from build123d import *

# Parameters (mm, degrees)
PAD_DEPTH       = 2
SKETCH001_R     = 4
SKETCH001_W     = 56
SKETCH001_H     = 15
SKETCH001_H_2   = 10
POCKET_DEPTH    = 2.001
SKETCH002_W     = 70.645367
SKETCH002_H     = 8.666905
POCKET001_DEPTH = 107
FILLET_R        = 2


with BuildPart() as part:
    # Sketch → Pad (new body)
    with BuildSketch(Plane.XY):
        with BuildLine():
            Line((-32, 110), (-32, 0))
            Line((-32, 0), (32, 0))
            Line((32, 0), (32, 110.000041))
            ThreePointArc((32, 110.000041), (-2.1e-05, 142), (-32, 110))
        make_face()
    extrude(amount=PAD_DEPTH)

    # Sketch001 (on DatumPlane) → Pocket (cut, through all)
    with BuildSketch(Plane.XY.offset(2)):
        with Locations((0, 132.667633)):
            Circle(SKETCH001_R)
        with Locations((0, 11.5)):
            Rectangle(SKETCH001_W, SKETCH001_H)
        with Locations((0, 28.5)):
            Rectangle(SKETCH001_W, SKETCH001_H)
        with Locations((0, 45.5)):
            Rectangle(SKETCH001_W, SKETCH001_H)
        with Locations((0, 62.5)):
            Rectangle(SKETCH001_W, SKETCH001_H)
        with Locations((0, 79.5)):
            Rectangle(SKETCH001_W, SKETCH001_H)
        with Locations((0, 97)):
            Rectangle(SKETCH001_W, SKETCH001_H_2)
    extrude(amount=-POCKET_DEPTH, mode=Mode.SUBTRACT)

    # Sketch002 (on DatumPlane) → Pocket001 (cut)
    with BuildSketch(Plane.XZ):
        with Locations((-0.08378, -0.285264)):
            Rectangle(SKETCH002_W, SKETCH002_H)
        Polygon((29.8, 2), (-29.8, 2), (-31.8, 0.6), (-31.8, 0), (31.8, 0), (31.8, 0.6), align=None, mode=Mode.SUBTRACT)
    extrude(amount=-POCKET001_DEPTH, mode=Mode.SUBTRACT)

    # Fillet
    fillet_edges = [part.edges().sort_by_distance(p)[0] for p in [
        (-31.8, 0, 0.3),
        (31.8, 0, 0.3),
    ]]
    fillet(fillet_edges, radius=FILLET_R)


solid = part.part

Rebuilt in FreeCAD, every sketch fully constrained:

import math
import FreeCAD as App
import Part
import Sketcher
Q = App.Units.Quantity


def edges_at(feature, points):
    """Names of the edges that pass closest to the given points."""
    edges = feature.Shape.Edges
    near = lambda p: min(range(len(edges)), key=lambda i: edges[i].distToShape(Part.Vertex(*p))[0])
    return sorted({f"Edge{near(p) + 1}" for p in points})

doc = App.newDocument("Part")
body = doc.addObject("PartDesign::Body", "Body")

# Sketch on XY plane
sketch1 = body.newObject("Sketcher::SketchObject", "Sketch")
sketch1.AttachmentSupport = (doc.getObject("XY_Plane"), [""])
sketch1.MapMode = "FlatFace"
sketch1.addGeometry(Part.LineSegment(App.Vector(-32, 110, 0), App.Vector(-32, 0, 0)), False)
sketch1.addGeometry(Part.LineSegment(App.Vector(-32, 0, 0), App.Vector(32, 0, 0)), False)
sketch1.addGeometry(Part.LineSegment(App.Vector(32, 0, 0), App.Vector(32, 110.000041, 0)), False)
sketch1.addGeometry(Part.ArcOfCircle(Part.Circle(App.Vector(0, 110, 0), App.Vector(0, 0, 1), 32), math.radians(0.000073), math.radians(180)), False)
sketch1.addConstraint(Sketcher.Constraint("Coincident", 0, 2, 1, 1))
sketch1.addConstraint(Sketcher.Constraint("Coincident", 1, 2, 2, 1))
sketch1.addConstraint(Sketcher.Constraint("Coincident", 2, 2, 3, 1))
sketch1.addConstraint(Sketcher.Constraint("Coincident", 3, 2, 0, 1))
sketch1.addConstraint(Sketcher.Constraint("Vertical", 0))
sketch1.addConstraint(Sketcher.Constraint("Horizontal", 1))
sketch1.addConstraint(Sketcher.Constraint("Vertical", 2))
sketch1.addConstraint(Sketcher.Constraint("PointOnObject", 3, 3, -2))
sketch1.addConstraint(Sketcher.Constraint("PointOnObject", 0, 2, -1))
sketch1.addConstraint(Sketcher.Constraint("Radius", 3, Q("32 mm")))
sketch1.addConstraint(Sketcher.Constraint("DistanceY", 0, 2, 0, 1, Q("110 mm")))
sketch1.addConstraint(Sketcher.Constraint("DistanceY", -1, 1, 3, 3, Q("110 mm")))
sketch1.addConstraint(Sketcher.Constraint("DistanceY", 2, 1, 2, 2, Q("110.000041 mm")))
pad1 = body.newObject("PartDesign::Pad", "Pad")
pad1.Profile = sketch1
pad1.Length = 2

# Sketch on XY plane
sketch2 = body.newObject("Sketcher::SketchObject", "Sketch001")
sketch2.AttachmentSupport = (doc.getObject("XY_Plane"), [""])
sketch2.MapMode = "FlatFace"
sketch2.AttachmentOffset = App.Placement(App.Vector(0, 0, 2), App.Rotation())
sketch2.addGeometry(Part.Circle(App.Vector(0, 132.7, 0), App.Vector(0, 0, 1), 4), False)
sketch2.addGeometry(Part.LineSegment(App.Vector(-28, 19, 0), App.Vector(-28, 4, 0)), False)
sketch2.addGeometry(Part.LineSegment(App.Vector(-28, 4, 0), App.Vector(28, 4, 0)), False)
sketch2.addGeometry(Part.LineSegment(App.Vector(28, 4, 0), App.Vector(28, 19, 0)), False)
sketch2.addGeometry(Part.LineSegment(App.Vector(28, 19, 0), App.Vector(-28, 19, 0)), False)
sketch2.addGeometry(Part.LineSegment(App.Vector(-28, 36, 0), App.Vector(-28, 21, 0)), False)
sketch2.addGeometry(Part.LineSegment(App.Vector(-28, 21, 0), App.Vector(28, 21, 0)), False)
sketch2.addGeometry(Part.LineSegment(App.Vector(28, 21, 0), App.Vector(28, 36, 0)), False)
sketch2.addGeometry(Part.LineSegment(App.Vector(28, 36, 0), App.Vector(-28, 36, 0)), False)
sketch2.addGeometry(Part.LineSegment(App.Vector(-28, 53, 0), App.Vector(-28, 38, 0)), False)
sketch2.addGeometry(Part.LineSegment(App.Vector(-28, 38, 0), App.Vector(28, 38, 0)), False)
sketch2.addGeometry(Part.LineSegment(App.Vector(28, 38, 0), App.Vector(28, 53, 0)), False)
sketch2.addGeometry(Part.LineSegment(App.Vector(28, 53, 0), App.Vector(-28, 53, 0)), False)
sketch2.addGeometry(Part.LineSegment(App.Vector(-28, 70, 0), App.Vector(-28, 55, 0)), False)
sketch2.addGeometry(Part.LineSegment(App.Vector(-28, 55, 0), App.Vector(28, 55, 0)), False)
sketch2.addGeometry(Part.LineSegment(App.Vector(28, 55, 0), App.Vector(28, 70, 0)), False)
sketch2.addGeometry(Part.LineSegment(App.Vector(28, 70, 0), App.Vector(-28, 70, 0)), False)
sketch2.addGeometry(Part.LineSegment(App.Vector(-28, 87, 0), App.Vector(-28, 72, 0)), False)
sketch2.addGeometry(Part.LineSegment(App.Vector(-28, 72, 0), App.Vector(28, 72, 0)), False)
sketch2.addGeometry(Part.LineSegment(App.Vector(28, 72, 0), App.Vector(28, 87, 0)), False)
sketch2.addGeometry(Part.LineSegment(App.Vector(28, 87, 0), App.Vector(-28, 87, 0)), False)
sketch2.addGeometry(Part.LineSegment(App.Vector(-28, 102, 0), App.Vector(-28, 92, 0)), False)
sketch2.addGeometry(Part.LineSegment(App.Vector(-28, 92, 0), App.Vector(28, 92, 0)), False)
sketch2.addGeometry(Part.LineSegment(App.Vector(28, 92, 0), App.Vector(28, 102, 0)), False)
sketch2.addGeometry(Part.LineSegment(App.Vector(28, 102, 0), App.Vector(-28, 102, 0)), False)
sketch2.addConstraint(Sketcher.Constraint("Coincident", 1, 2, 2, 1))
sketch2.addConstraint(Sketcher.Constraint("Coincident", 2, 2, 3, 1))
sketch2.addConstraint(Sketcher.Constraint("Coincident", 3, 2, 4, 1))
sketch2.addConstraint(Sketcher.Constraint("Coincident", 4, 2, 1, 1))
sketch2.addConstraint(Sketcher.Constraint("Coincident", 5, 2, 6, 1))
sketch2.addConstraint(Sketcher.Constraint("Coincident", 6, 2, 7, 1))
sketch2.addConstraint(Sketcher.Constraint("Coincident", 7, 2, 8, 1))
sketch2.addConstraint(Sketcher.Constraint("Coincident", 8, 2, 5, 1))
sketch2.addConstraint(Sketcher.Constraint("Coincident", 9, 2, 10, 1))
sketch2.addConstraint(Sketcher.Constraint("Coincident", 10, 2, 11, 1))
sketch2.addConstraint(Sketcher.Constraint("Coincident", 11, 2, 12, 1))
sketch2.addConstraint(Sketcher.Constraint("Coincident", 12, 2, 9, 1))
sketch2.addConstraint(Sketcher.Constraint("Coincident", 13, 2, 14, 1))
sketch2.addConstraint(Sketcher.Constraint("Coincident", 14, 2, 15, 1))
sketch2.addConstraint(Sketcher.Constraint("Coincident", 15, 2, 16, 1))
sketch2.addConstraint(Sketcher.Constraint("Coincident", 16, 2, 13, 1))
sketch2.addConstraint(Sketcher.Constraint("Coincident", 17, 2, 18, 1))
sketch2.addConstraint(Sketcher.Constraint("Coincident", 18, 2, 19, 1))
sketch2.addConstraint(Sketcher.Constraint("Coincident", 19, 2, 20, 1))
sketch2.addConstraint(Sketcher.Constraint("Coincident", 20, 2, 17, 1))
sketch2.addConstraint(Sketcher.Constraint("Coincident", 21, 2, 22, 1))
sketch2.addConstraint(Sketcher.Constraint("Coincident", 22, 2, 23, 1))
sketch2.addConstraint(Sketcher.Constraint("Coincident", 23, 2, 24, 1))
sketch2.addConstraint(Sketcher.Constraint("Coincident", 24, 2, 21, 1))
sketch2.addConstraint(Sketcher.Constraint("Vertical", 1))
sketch2.addConstraint(Sketcher.Constraint("Horizontal", 2))
sketch2.addConstraint(Sketcher.Constraint("Vertical", 3))
sketch2.addConstraint(Sketcher.Constraint("Horizontal", 4))
sketch2.addConstraint(Sketcher.Constraint("Vertical", 5))
sketch2.addConstraint(Sketcher.Constraint("Horizontal", 6))
sketch2.addConstraint(Sketcher.Constraint("Vertical", 7))
sketch2.addConstraint(Sketcher.Constraint("Horizontal", 8))
sketch2.addConstraint(Sketcher.Constraint("Vertical", 9))
sketch2.addConstraint(Sketcher.Constraint("Horizontal", 10))
sketch2.addConstraint(Sketcher.Constraint("Vertical", 11))
sketch2.addConstraint(Sketcher.Constraint("Horizontal", 12))
sketch2.addConstraint(Sketcher.Constraint("Vertical", 13))
sketch2.addConstraint(Sketcher.Constraint("Horizontal", 14))
sketch2.addConstraint(Sketcher.Constraint("Vertical", 15))
sketch2.addConstraint(Sketcher.Constraint("Horizontal", 16))
sketch2.addConstraint(Sketcher.Constraint("Vertical", 17))
sketch2.addConstraint(Sketcher.Constraint("Horizontal", 18))
sketch2.addConstraint(Sketcher.Constraint("Vertical", 19))
sketch2.addConstraint(Sketcher.Constraint("Horizontal", 20))
sketch2.addConstraint(Sketcher.Constraint("Vertical", 21))
sketch2.addConstraint(Sketcher.Constraint("Horizontal", 22))
sketch2.addConstraint(Sketcher.Constraint("Vertical", 23))
sketch2.addConstraint(Sketcher.Constraint("Horizontal", 24))
sketch2.addConstraint(Sketcher.Constraint("PointOnObject", 0, 3, -2))
sketch2.addConstraint(Sketcher.Constraint("Vertical", 4, 2, 5, 2))
sketch2.addConstraint(Sketcher.Constraint("Vertical", 3, 2, 6, 2))
sketch2.addConstraint(Sketcher.Constraint("Vertical", 8, 2, 9, 2))
sketch2.addConstraint(Sketcher.Constraint("Vertical", 7, 2, 10, 2))
sketch2.addConstraint(Sketcher.Constraint("Vertical", 12, 2, 13, 2))
sketch2.addConstraint(Sketcher.Constraint("Vertical", 11, 2, 14, 2))
sketch2.addConstraint(Sketcher.Constraint("Vertical", 16, 2, 17, 2))
sketch2.addConstraint(Sketcher.Constraint("Vertical", 15, 2, 18, 2))
sketch2.addConstraint(Sketcher.Constraint("Vertical", 20, 2, 21, 2))
sketch2.addConstraint(Sketcher.Constraint("Vertical", 19, 2, 22, 2))
sketch2.addConstraint(Sketcher.Constraint("Equal", 3, 5))
sketch2.addConstraint(Sketcher.Constraint("Equal", 7, 9))
sketch2.addConstraint(Sketcher.Constraint("Equal", 11, 13))
sketch2.addConstraint(Sketcher.Constraint("Equal", 15, 17))
sketch2.addConstraint(Sketcher.Constraint("Diameter", 0, Q("8 mm")))
sketch2.addConstraint(Sketcher.Constraint("DistanceX", 2, 1, 2, 2, Q("56 mm")))
sketch2.addConstraint(Sketcher.Constraint("DistanceY", 1, 2, 1, 1, Q("15 mm")))
sketch2.addConstraint(Sketcher.Constraint("DistanceY", 21, 2, 21, 1, Q("10 mm")))
sketch2.addConstraint(Sketcher.Constraint("DistanceX", 1, 2, -1, 1, Q("28 mm")))
sketch2.addConstraint(Sketcher.Constraint("DistanceY", -1, 1, 1, 2, Q("4 mm")))
sketch2.addConstraint(Sketcher.Constraint("DistanceY", -1, 1, 5, 2, Q("21 mm")))
sketch2.addConstraint(Sketcher.Constraint("DistanceY", -1, 1, 9, 2, Q("38 mm")))
sketch2.addConstraint(Sketcher.Constraint("DistanceY", -1, 1, 13, 2, Q("55 mm")))
sketch2.addConstraint(Sketcher.Constraint("DistanceY", -1, 1, 17, 2, Q("72 mm")))
sketch2.addConstraint(Sketcher.Constraint("DistanceY", -1, 1, 21, 2, Q("92 mm")))
sketch2.addConstraint(Sketcher.Constraint("DistanceY", -1, 1, 0, 3, Q("132.667633 mm")))
pocket1 = body.newObject("PartDesign::Pocket", "Pocket")
pocket1.Profile = sketch2
pocket1.Type = "ThroughAll"

# Sketch on XZ plane
sketch3 = body.newObject("Sketcher::SketchObject", "Sketch002")
sketch3.AttachmentSupport = (doc.getObject("XZ_Plane"), [""])
sketch3.MapMode = "FlatFace"
sketch3.addGeometry(Part.LineSegment(App.Vector(-35.4, 4, 0), App.Vector(-35.4, -4.6, 0)), False)
sketch3.addGeometry(Part.LineSegment(App.Vector(-35.4, -4.6, 0), App.Vector(35.2, -4.6, 0)), False)
sketch3.addGeometry(Part.LineSegment(App.Vector(35.2, -4.6, 0), App.Vector(35.2, 4, 0)), False)
sketch3.addGeometry(Part.LineSegment(App.Vector(35.2, 4, 0), App.Vector(-35.4, 4, 0)), False)
sketch3.addGeometry(Part.LineSegment(App.Vector(-29.8, 2, 0), App.Vector(29.8, 2, 0)), False)
sketch3.addGeometry(Part.LineSegment(App.Vector(29.8, 2, 0), App.Vector(31.8, 0.6, 0)), False)
sketch3.addGeometry(Part.LineSegment(App.Vector(31.8, 0.6, 0), App.Vector(31.8, 0, 0)), False)
sketch3.addGeometry(Part.LineSegment(App.Vector(31.8, 0, 0), App.Vector(-31.8, 0, 0)), False)
sketch3.addGeometry(Part.LineSegment(App.Vector(-31.8, 0, 0), App.Vector(-31.8, 0.6, 0)), False)
sketch3.addGeometry(Part.LineSegment(App.Vector(-31.8, 0.6, 0), App.Vector(-29.8, 2, 0)), False)
sketch3.addConstraint(Sketcher.Constraint("Coincident", 0, 2, 1, 1))
sketch3.addConstraint(Sketcher.Constraint("Coincident", 1, 2, 2, 1))
sketch3.addConstraint(Sketcher.Constraint("Coincident", 2, 2, 3, 1))
sketch3.addConstraint(Sketcher.Constraint("Coincident", 3, 2, 0, 1))
sketch3.addConstraint(Sketcher.Constraint("Coincident", 4, 2, 5, 1))
sketch3.addConstraint(Sketcher.Constraint("Coincident", 5, 2, 6, 1))
sketch3.addConstraint(Sketcher.Constraint("Coincident", 6, 2, 7, 1))
sketch3.addConstraint(Sketcher.Constraint("Coincident", 7, 2, 8, 1))
sketch3.addConstraint(Sketcher.Constraint("Coincident", 8, 2, 9, 1))
sketch3.addConstraint(Sketcher.Constraint("Coincident", 9, 2, 4, 1))
sketch3.addConstraint(Sketcher.Constraint("Vertical", 0))
sketch3.addConstraint(Sketcher.Constraint("Horizontal", 1))
sketch3.addConstraint(Sketcher.Constraint("Vertical", 2))
sketch3.addConstraint(Sketcher.Constraint("Horizontal", 3))
sketch3.addConstraint(Sketcher.Constraint("Horizontal", 4))
sketch3.addConstraint(Sketcher.Constraint("Vertical", 6))
sketch3.addConstraint(Sketcher.Constraint("Horizontal", 7))
sketch3.addConstraint(Sketcher.Constraint("Vertical", 8))
sketch3.addConstraint(Sketcher.Constraint("Symmetric", 6, 2, 7, 2, -1, 1))
sketch3.addConstraint(Sketcher.Constraint("Horizontal", 5, 2, 8, 2))
sketch3.addConstraint(Sketcher.Constraint("Equal", 5, 9))
sketch3.addConstraint(Sketcher.Constraint("DistanceX", 4, 1, 4, 2, Q("59.6 mm")))
sketch3.addConstraint(Sketcher.Constraint("DistanceX", 7, 2, 7, 1, Q("63.6 mm")))
sketch3.addConstraint(Sketcher.Constraint("DistanceY", 6, 2, 6, 1, Q("0.6 mm")))
sketch3.addConstraint(Sketcher.Constraint("DistanceY", -1, 1, 4, 2, Q("2 mm")))
sketch3.addConstraint(Sketcher.Constraint("DistanceX", 1, 1, 1, 2, Q("70.645367 mm")))
sketch3.addConstraint(Sketcher.Constraint("DistanceY", 0, 2, 0, 1, Q("8.666905 mm")))
sketch3.addConstraint(Sketcher.Constraint("DistanceY", -1, 1, 2, 2, Q("4.048189 mm")))
sketch3.addConstraint(Sketcher.Constraint("DistanceX", 0, 2, -1, 1, Q("35.406464 mm")))
pocket2 = body.newObject("PartDesign::Pocket", "Pocket001")
pocket2.Profile = sketch3
pocket2.Length = 107
doc.recompute()

fillet = body.newObject("PartDesign::Fillet", "Fillet")
fillet.Base = (pocket2, edges_at(pocket2, [(-31.8, 0, 0.3), (31.8, 0, 0.3)]))
fillet.Radius = 2

doc.recompute()
